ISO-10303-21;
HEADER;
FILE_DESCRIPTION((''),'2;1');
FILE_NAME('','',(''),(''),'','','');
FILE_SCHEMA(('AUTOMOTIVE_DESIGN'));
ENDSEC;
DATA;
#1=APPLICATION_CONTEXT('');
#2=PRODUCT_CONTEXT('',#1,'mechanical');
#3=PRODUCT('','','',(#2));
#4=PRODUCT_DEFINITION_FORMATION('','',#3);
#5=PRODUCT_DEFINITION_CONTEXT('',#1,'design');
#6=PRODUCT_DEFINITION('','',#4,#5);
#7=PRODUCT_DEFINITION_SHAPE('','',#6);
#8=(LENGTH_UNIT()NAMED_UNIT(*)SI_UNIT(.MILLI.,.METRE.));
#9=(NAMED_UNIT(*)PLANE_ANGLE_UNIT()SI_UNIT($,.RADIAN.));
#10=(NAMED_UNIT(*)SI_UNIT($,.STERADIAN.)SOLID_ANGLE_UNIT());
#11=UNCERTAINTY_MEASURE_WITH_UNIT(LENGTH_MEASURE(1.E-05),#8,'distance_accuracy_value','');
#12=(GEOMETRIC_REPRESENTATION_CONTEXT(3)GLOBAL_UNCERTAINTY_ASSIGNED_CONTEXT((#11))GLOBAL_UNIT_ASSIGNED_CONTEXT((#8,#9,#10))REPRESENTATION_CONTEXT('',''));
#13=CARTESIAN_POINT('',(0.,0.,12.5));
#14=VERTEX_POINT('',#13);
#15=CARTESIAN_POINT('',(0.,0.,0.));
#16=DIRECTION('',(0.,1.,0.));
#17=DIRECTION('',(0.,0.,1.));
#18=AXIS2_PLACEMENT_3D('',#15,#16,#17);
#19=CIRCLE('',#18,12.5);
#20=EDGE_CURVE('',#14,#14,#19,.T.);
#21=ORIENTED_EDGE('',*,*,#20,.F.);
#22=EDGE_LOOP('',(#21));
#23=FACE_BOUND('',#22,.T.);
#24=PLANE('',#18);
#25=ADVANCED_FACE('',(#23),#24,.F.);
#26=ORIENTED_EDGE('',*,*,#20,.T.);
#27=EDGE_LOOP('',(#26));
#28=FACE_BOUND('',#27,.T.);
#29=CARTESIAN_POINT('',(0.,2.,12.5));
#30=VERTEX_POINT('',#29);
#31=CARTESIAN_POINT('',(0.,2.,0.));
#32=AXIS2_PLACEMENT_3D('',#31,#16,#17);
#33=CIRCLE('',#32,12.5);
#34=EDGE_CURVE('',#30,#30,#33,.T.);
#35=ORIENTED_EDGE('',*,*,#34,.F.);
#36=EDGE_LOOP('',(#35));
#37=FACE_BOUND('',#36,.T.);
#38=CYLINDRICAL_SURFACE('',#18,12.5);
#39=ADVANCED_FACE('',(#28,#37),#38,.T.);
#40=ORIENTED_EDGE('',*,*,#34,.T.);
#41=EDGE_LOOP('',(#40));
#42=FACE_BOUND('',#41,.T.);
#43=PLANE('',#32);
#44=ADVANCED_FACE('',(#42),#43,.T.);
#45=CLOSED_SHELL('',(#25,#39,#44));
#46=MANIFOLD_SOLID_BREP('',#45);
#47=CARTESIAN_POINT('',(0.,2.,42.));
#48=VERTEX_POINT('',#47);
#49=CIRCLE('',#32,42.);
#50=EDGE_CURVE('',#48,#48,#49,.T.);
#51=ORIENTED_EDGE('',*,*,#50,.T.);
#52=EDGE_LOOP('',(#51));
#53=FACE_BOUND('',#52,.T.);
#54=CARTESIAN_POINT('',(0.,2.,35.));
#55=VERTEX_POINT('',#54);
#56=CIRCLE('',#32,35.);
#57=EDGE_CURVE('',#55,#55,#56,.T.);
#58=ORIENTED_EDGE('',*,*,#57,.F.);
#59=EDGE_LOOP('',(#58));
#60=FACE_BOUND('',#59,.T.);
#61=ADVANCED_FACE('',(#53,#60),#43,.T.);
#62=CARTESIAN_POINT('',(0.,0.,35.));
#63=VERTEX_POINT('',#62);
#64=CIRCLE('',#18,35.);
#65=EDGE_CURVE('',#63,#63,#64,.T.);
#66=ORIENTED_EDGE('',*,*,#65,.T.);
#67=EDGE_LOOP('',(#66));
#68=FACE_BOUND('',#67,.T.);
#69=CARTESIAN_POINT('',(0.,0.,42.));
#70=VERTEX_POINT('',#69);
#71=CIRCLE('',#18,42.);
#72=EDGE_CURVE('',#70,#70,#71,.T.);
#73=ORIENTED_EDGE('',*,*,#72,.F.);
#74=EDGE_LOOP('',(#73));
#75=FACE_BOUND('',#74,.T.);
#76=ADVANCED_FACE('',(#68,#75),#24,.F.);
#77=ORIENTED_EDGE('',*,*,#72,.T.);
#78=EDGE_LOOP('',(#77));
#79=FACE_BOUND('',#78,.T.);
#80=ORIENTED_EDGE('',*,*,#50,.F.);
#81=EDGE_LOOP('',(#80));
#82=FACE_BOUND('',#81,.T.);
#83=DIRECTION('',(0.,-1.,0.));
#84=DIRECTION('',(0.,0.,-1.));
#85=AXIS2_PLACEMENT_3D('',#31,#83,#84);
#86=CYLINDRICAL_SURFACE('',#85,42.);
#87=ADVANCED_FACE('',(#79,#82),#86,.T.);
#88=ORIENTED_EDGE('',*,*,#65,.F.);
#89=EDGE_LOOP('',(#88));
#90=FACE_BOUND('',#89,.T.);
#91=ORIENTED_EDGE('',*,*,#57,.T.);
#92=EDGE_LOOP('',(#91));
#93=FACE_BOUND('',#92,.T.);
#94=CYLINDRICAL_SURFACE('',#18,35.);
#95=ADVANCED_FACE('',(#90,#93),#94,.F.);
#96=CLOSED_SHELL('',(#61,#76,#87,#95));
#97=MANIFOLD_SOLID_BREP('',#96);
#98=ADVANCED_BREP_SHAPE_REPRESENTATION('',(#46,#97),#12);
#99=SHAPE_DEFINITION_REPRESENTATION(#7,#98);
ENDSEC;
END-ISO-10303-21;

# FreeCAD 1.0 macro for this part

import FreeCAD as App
import Part
import Sketcher
from FreeCAD import Vector
Q = App.Units.Quantity

doc = App.newDocument("Part")
body = doc.addObject("PartDesign::Body", "Body")
body.AllowCompound = True

# Sketch on XZ plane
sketch1 = body.newObject("Sketcher::SketchObject", "Sketch")
sketch1.AttachmentSupport = (doc.getObject("XZ_Plane"), [""])
sketch1.MapMode = "FlatFace"
sketch1.addGeometry(Part.Circle(Vector(0, 0, 0), Vector(0, 0, 1), 42), False)
sketch1.addConstraint([
    Sketcher.Constraint("Coincident", 0, 3, -1, 1),
    Sketcher.Constraint("Diameter", 0, Q("84 mm")),
])
pad1 = body.newObject("PartDesign::Pad", "Pad")
pad1.Profile = sketch1
pad1.Length = 2
pad1.Reversed = True

# Sketch on XZ plane
sketch2 = body.newObject("Sketcher::SketchObject", "Sketch001")
sketch2.AttachmentSupport = (doc.getObject("XZ_Plane"), [""])
sketch2.MapMode = "FlatFace"
sketch2.AttachmentOffset = App.Placement(Vector(0, 0, -2), App.Rotation())
sketch2.addGeometry([
    Part.Circle(Vector(0, 0, 0), Vector(0, 0, 1), 35),
    Part.Circle(Vector(0, 0, 0), Vector(0, 0, 1), 12),
], False)
sketch2.addConstraint([
    Sketcher.Constraint("Coincident", 0, 3, -1, 1),
    Sketcher.Constraint("Coincident", 1, 3, -1, 1),
    Sketcher.Constraint("Diameter", 0, Q("70 mm")),
    Sketcher.Constraint("Diameter", 1, Q("25 mm")),
])
pocket1 = body.newObject("PartDesign::Pocket", "Pocket")
pocket1.Profile = sketch2
pocket1.Length = 2
pocket1.Reversed = True

doc.recompute()
